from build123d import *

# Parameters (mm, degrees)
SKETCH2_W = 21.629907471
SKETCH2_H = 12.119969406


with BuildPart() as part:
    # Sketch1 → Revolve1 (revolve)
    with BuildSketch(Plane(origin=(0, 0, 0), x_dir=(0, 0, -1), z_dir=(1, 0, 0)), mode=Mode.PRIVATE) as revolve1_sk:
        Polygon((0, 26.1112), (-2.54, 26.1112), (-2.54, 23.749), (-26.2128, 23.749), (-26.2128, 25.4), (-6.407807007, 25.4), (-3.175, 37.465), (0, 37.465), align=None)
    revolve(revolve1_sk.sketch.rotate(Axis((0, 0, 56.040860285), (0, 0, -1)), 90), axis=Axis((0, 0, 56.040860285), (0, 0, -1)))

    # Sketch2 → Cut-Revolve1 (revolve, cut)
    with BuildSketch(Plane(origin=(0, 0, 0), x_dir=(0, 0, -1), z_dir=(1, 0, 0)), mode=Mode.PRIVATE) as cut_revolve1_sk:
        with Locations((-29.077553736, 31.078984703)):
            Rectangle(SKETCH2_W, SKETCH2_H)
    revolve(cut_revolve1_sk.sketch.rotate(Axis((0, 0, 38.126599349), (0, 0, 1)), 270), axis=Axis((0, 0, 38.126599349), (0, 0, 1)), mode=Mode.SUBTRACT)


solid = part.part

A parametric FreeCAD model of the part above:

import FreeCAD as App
import Part
import Sketcher

V = App.Vector
Q = App.Units.Quantity


def add_polygon(sketch, points):
    """Adds a closed chain of lines whose ends are joined by coincident constraints."""
    first, n = sketch.GeometryCount, len(points)
    for a, b in zip(points, points[1:] + points[:1]):
        sketch.addGeometry(Part.LineSegment(App.Vector(*a, 0), App.Vector(*b, 0)), False)
    for i in range(n):
        sketch.addConstraint(Sketcher.Constraint("Coincident", first + i, 2, first + (i + 1) % n, 1))

doc = App.newDocument("Part")
body = doc.addObject("PartDesign::Body", "Body")

# Sketch on YZ plane
sketch1 = doc.addObject("Sketcher::SketchObject", "Sketch")
body.addObject(sketch1)
sketch1.AttachmentSupport = (doc.YZ_Plane, [""])
sketch1.MapMode = "FlatFace"
add_polygon(sketch1, [(26.1, 2.5), (26.1, 0), (37.5, 0), (37.5, 3.2), (25.4, 6.4), (25.4, 26.2), (23.7, 26.2), (23.7, 2.5)])  # lines 0-7
sketch1.addConstraint([
    Sketcher.Constraint("Vertical", 0),
    Sketcher.Constraint("Horizontal", 1),
    Sketcher.Constraint("Vertical", 2),
    Sketcher.Constraint("Vertical", 4),
    Sketcher.Constraint("Horizontal", 5),
    Sketcher.Constraint("Vertical", 6),
    Sketcher.Constraint("Horizontal", 7),
    Sketcher.Constraint("PointOnObject", 0, 2, -1),
    Sketcher.Constraint("DistanceY", 0, 2, 0, 1, Q("0.1 in")),
    Sketcher.Constraint("DistanceX", -1, 1, 3, 2, Q("1 in")),
    Sketcher.Constraint("Angle", 3, Q("165 deg")),
    Sketcher.Constraint("DistanceX", 1, 1, 1, 2, Q("0.447 in")),
    Sketcher.Constraint("DistanceX", 5, 2, 5, 1, Q("0.065 in")),
    Sketcher.Constraint("DistanceX", 7, 1, 7, 2, Q("0.093 in")),
    Sketcher.Constraint("DistanceY", 2, 1, 2, 2, Q("0.125 in")),
    Sketcher.Constraint("DistanceY", 6, 2, 6, 1, Q("0.932 in")),
])
revolution = doc.addObject("PartDesign::Revolution", "Revolution")
body.addObject(revolution)
revolution.Profile = sketch1
revolution.ReferenceAxis = (sketch1, ["V_Axis"])
revolution.Angle = 360

# Sketch on YZ plane
sketch2 = doc.addObject("Sketcher::SketchObject", "Sketch001")
body.addObject(sketch2)
sketch2.AttachmentSupport = (doc.YZ_Plane, [""])
sketch2.MapMode = "FlatFace"
add_polygon(sketch2, [(37, 40), (25, 40), (25, 18), (37, 18)])  # lines 0-3
sketch2.addConstraint([
    Sketcher.Constraint("Horizontal", 0),
    Sketcher.Constraint("Vertical", 1),
    Sketcher.Constraint("Horizontal", 2),
    Sketcher.Constraint("Vertical", 3),
    Sketcher.Constraint("DistanceX", -1, 1, 0, 2, Q("0.985 in")),
    Sketcher.Constraint("DistanceY", -1, 1, 1, 2, Q("0.719 in")),
    Sketcher.Constraint("DistanceX", 0, 2, 0, 1, Q("12.119969 mm")),
    Sketcher.Constraint("DistanceY", 1, 2, 1, 1, Q("21.629907 mm")),
])
groove = doc.addObject("PartDesign::Groove", "Groove")
body.addObject(groove)
groove.Profile = sketch2
groove.ReferenceAxis = (sketch2, ["V_Axis"])
groove.Angle = 360

doc.recompute()
